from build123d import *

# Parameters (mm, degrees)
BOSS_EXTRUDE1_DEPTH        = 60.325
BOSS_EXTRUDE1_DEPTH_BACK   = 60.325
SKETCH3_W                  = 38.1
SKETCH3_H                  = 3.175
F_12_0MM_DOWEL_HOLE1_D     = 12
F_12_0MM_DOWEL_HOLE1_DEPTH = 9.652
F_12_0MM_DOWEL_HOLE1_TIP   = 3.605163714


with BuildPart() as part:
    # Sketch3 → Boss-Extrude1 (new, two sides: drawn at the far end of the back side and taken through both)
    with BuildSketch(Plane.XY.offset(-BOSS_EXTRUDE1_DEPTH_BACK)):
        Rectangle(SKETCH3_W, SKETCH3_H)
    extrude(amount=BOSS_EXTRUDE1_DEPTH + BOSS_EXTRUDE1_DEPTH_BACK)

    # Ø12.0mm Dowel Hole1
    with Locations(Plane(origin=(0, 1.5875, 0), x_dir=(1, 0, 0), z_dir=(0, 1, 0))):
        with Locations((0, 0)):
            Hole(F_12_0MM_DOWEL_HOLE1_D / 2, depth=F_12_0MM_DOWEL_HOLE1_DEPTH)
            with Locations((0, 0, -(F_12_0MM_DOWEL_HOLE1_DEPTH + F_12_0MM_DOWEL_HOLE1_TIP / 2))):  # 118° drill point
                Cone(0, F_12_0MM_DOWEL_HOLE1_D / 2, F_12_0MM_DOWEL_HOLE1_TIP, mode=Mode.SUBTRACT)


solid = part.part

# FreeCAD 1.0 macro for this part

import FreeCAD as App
import Part
import Sketcher

V = App.Vector
Q = App.Units.Quantity

doc = App.newDocument("Part")
body = doc.addObject("PartDesign::Body", "Body")

# Sketch on XY plane
sketch1 = body.newObject("Sketcher::SketchObject", "Sketch")
sketch1.AttachmentSupport = (doc.getObject("XY_Plane"), [""])
sketch1.MapMode = "FlatFace"
sketch1.addGeometry(Part.LineSegment(V(-19.05, 1.5875, 0), V(-19.05, -1.5875, 0)), False)
sketch1.addGeometry(Part.LineSegment(V(-19.05, -1.5875, 0), V(19.05, -1.5875, 0)), False)
sketch1.addGeometry(Part.LineSegment(V(19.05, -1.5875, 0), V(19.05, 1.5875, 0)), False)
sketch1.addGeometry(Part.LineSegment(V(19.05, 1.5875, 0), V(-19.05, 1.5875, 0)), False)
sketch1.addConstraint(Sketcher.Constraint("Coincident", 0, 2, 1, 1))
sketch1.addConstraint(Sketcher.Constraint("Coincident", 1, 2, 2, 1))
sketch1.addConstraint(Sketcher.Constraint("Coincident", 2, 2, 3, 1))
sketch1.addConstraint(Sketcher.Constraint("Coincident", 3, 2, 0, 1))
sketch1.addConstraint(Sketcher.Constraint("Vertical", 0))
sketch1.addConstraint(Sketcher.Constraint("Horizontal", 1))
sketch1.addConstraint(Sketcher.Constraint("Vertical", 2))
sketch1.addConstraint(Sketcher.Constraint("Horizontal", 3))
sketch1.addConstraint(Sketcher.Constraint("Symmetric", 0, 2, 2, 2, -1, 1))
sketch1.addConstraint(Sketcher.Constraint("DistanceX", 1, 1, 1, 2, Q("1.5 in")))
sketch1.addConstraint(Sketcher.Constraint("DistanceY", 0, 2, 0, 1, Q("0.125 in")))
pad1 = body.newObject("PartDesign::Pad", "Pad")
pad1.Profile = sketch1
pad1.Type = "TwoLengths"
pad1.Length = Q("2.375 in")
pad1.Length2 = Q("2.375 in")

# Sketch on XZ plane
sketch2 = body.newObject("Sketcher::SketchObject", "Sketch001")
sketch2.AttachmentSupport = (doc.getObject("XZ_Plane"), [""])
sketch2.MapMode = "FlatFace"
sketch2.AttachmentOffset = App.Placement(V(0, 0, -0.0625 * 25.4), App.Rotation())
sketch2.addGeometry(Part.Circle(V(0, 0, 0), V(0, 0, 1), 6), False)
sketch2.addConstraint(Sketcher.Constraint("Coincident", 0, 3, -1, 1))
sketch2.addConstraint(Sketcher.Constraint("Diameter", 0, 12.0))
doc.recompute()
hole = body.newObject("PartDesign::Hole", "Hole")
hole.Profile = sketch2
hole.ThreadType = "None"
hole.Diameter = 12
hole.DepthType = "Dimension"
hole.Depth = Q("0.38 in")
hole.DrillPoint = "Angled"
hole.DrillPointAngle = 118
hole.Reversed = True

doc.recompute()
